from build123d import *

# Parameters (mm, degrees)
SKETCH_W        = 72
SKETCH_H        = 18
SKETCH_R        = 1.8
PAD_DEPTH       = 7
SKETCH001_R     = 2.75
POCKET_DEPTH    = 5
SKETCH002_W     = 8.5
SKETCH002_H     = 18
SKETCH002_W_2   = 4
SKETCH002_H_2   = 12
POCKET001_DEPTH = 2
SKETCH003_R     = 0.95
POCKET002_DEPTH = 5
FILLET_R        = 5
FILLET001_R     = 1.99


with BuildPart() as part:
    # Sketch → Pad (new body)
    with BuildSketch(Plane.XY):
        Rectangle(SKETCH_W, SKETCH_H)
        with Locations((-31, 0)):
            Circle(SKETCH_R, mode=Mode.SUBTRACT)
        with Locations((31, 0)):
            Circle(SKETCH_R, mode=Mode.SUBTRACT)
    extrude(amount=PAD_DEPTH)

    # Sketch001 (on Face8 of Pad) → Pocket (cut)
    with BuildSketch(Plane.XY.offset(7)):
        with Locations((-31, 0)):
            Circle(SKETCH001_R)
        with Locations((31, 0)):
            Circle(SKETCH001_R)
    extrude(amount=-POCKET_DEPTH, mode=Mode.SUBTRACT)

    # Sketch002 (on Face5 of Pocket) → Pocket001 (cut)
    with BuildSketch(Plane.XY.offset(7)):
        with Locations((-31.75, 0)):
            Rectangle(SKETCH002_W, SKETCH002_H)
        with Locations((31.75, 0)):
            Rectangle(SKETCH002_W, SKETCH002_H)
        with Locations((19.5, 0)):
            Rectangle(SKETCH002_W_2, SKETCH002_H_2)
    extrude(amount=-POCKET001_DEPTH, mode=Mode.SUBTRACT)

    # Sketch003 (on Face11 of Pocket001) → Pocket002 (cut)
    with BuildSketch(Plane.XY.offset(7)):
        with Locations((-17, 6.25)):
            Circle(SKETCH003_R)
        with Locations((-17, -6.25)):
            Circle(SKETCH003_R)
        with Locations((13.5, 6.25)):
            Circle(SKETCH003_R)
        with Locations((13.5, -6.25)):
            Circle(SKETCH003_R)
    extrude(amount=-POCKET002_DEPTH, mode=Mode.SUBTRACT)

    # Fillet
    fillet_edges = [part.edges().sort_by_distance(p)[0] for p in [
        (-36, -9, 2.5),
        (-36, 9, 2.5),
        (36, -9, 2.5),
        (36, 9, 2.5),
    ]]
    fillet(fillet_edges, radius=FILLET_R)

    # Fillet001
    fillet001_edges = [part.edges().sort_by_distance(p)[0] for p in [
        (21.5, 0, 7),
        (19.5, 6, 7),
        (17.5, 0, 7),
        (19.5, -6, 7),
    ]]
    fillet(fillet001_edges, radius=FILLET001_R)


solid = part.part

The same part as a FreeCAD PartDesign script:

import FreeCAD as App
import Part
import Sketcher

V = App.Vector


def edges_at(feature, points):
    """Names of the edges that pass closest to the given points."""
    edges = feature.Shape.Edges
    near = lambda p: min(range(len(edges)), key=lambda i: edges[i].distToShape(Part.Vertex(*p))[0])
    return sorted({f"Edge{near(p) + 1}" for p in points})


def add_polygon(sketch, points):
    """Adds a closed chain of lines whose ends are joined by coincident constraints."""
    first, n = sketch.GeometryCount, len(points)
    for a, b in zip(points, points[1:] + points[:1]):
        sketch.addGeometry(Part.LineSegment(App.Vector(*a, 0), App.Vector(*b, 0)), False)
    for i in range(n):
        sketch.addConstraint(Sketcher.Constraint("Coincident", first + i, 2, first + (i + 1) % n, 1))

doc = App.newDocument("Part")
body = doc.addObject("PartDesign::Body", "Body")

sketch1 = doc.addObject("Sketcher::SketchObject", "Sketch")
body.addObject(sketch1)
sketch1.AttachmentSupport = (doc.XY_Plane, [""])
sketch1.MapMode = "FlatFace"
add_polygon(sketch1, [(-36, 9), (-36, -9), (36, -9), (36, 9)])
sketch1.addGeometry(Part.Circle(V(-31, 0, 0), V(0, 0, 1), 1.8), False)
sketch1.addGeometry(Part.Circle(V(31, 0, 0), V(0, 0, 1), 1.8), False)
sketch1.addConstraint([
    Sketcher.Constraint("Vertical", 0),
    Sketcher.Constraint("Horizontal", 1),
    Sketcher.Constraint("Vertical", 2),
    Sketcher.Constraint("Horizontal", 3),
    Sketcher.Constraint("Equal", 4, 5),
    Sketcher.Constraint("Symmetric", 4, 3, 5, 3, -1, 1),
    Sketcher.Constraint("Symmetric", 0, 2, 2, 2, -1, 1),
    Sketcher.Constraint("PointOnObject", 4, 3, -1),
    Sketcher.Constraint("Diameter", 4, 3.6),
    Sketcher.Constraint("DistanceX", 1, 1, 1, 2, 72.0),
    Sketcher.Constraint("DistanceY", 0, 2, 0, 1, 18.0),
    Sketcher.Constraint("DistanceX", 4, 3, -1, 1, 31.0),
])
pad1 = doc.addObject("PartDesign::Pad", "Pad")
body.addObject(pad1)
pad1.Profile = sketch1
pad1.Length = 7

sketch2 = doc.addObject("Sketcher::SketchObject", "Sketch001")
body.addObject(sketch2)
sketch2.AttachmentSupport = (doc.XY_Plane, [""])
sketch2.MapMode = "FlatFace"
sketch2.AttachmentOffset = App.Placement(V(0, 0, 7), App.Rotation())
sketch2.addGeometry([
    Part.Circle(V(-31, 0, 0), V(0, 0, 1), 2.8),
    Part.Circle(V(31, 0, 0), V(0, 0, 1), 2.8),
], False)
sketch2.addConstraint([
    Sketcher.Constraint("Equal", 0, 1),
    Sketcher.Constraint("Symmetric", 0, 3, 1, 3, -1, 1),
    Sketcher.Constraint("PointOnObject", 0, 3, -1),
    Sketcher.Constraint("Diameter", 0, 5.5),
    Sketcher.Constraint("DistanceX", 0, 3, -1, 1, 31.0),
])
pocket1 = doc.addObject("PartDesign::Pocket", "Pocket")
body.addObject(pocket1)
pocket1.Profile = sketch2
pocket1.Length = 5

sketch3 = doc.addObject("Sketcher::SketchObject", "Sketch002")
body.addObject(sketch3)
sketch3.AttachmentSupport = (doc.XY_Plane, [""])
sketch3.MapMode = "FlatFace"
sketch3.AttachmentOffset = App.Placement(V(0, 0, 7), App.Rotation())
add_polygon(sketch3, [(-36, 9), (-36, -9), (-27.5, -9), (-27.5, 9)])
add_polygon(sketch3, [(27.5, 9), (27.5, -9), (36, -9), (36, 9)])
add_polygon(sketch3, [(17.5, 6), (17.5, -6), (21.5, -6), (21.5, 6)])
sketch3.addConstraint([
    Sketcher.Constraint("Vertical", 0),
    Sketcher.Constraint("Horizontal", 1),
    Sketcher.Constraint("Vertical", 2),
    Sketcher.Constraint("Horizontal", 3),
    Sketcher.Constraint("Vertical", 4),
    Sketcher.Constraint("Horizontal", 5),
    Sketcher.Constraint("Vertical", 6),
    Sketcher.Constraint("Horizontal", 7),
    Sketcher.Constraint("Vertical", 8),
    Sketcher.Constraint("Horizontal", 9),
    Sketcher.Constraint("Vertical", 10),
    Sketcher.Constraint("Horizontal", 11),
    Sketcher.Constraint("Symmetric", 2, 2, 4, 2, -1, 1),
    Sketcher.Constraint("Symmetric", 0, 2, 6, 2, -1, 1),
    Sketcher.Constraint("Horizontal", 1, 2, 4, 2),
    Sketcher.Constraint("DistanceX", 9, 1, 9, 2, 4.0),
    Sketcher.Constraint("DistanceY", 0, 2, 0, 1, 18.0),
    Sketcher.Constraint("DistanceY", 8, 2, 8, 1, 12.0),
    Sketcher.Constraint("DistanceX", 1, 1, 1, 2, 8.5),
    Sketcher.Constraint("DistanceX", 0, 2, -1, 1, 36.0),
    Sketcher.Constraint("DistanceY", 8, 2, -1, 1, 6.0),
    Sketcher.Constraint("DistanceX", 8, 2, 4, 2, 10.0),
])
pocket2 = doc.addObject("PartDesign::Pocket", "Pocket001")
body.addObject(pocket2)
pocket2.Profile = sketch3
pocket2.Length = 2

sketch4 = doc.addObject("Sketcher::SketchObject", "Sketch003")
body.addObject(sketch4)
sketch4.AttachmentSupport = (doc.XY_Plane, [""])
sketch4.MapMode = "FlatFace"
sketch4.AttachmentOffset = App.Placement(V(0, 0, 7), App.Rotation())
sketch4.addGeometry([
    Part.Circle(V(-17, 6.2, 0), V(0, 0, 1), 0.9),
    Part.Circle(V(-17, -6.2, 0), V(0, 0, 1), 0.9),
    Part.Circle(V(13.5, 6.2, 0), V(0, 0, 1), 0.9),
    Part.Circle(V(13.5, -6.2, 0), V(0, 0, 1), 0.9),
], False)
sketch4.addConstraint([
    Sketcher.Constraint("Equal", 0, 1),
    Sketcher.Constraint("Equal", 1, 2),
    Sketcher.Constraint("Equal", 2, 3),
    Sketcher.Constraint("Symmetric", 0, 3, 1, 3, -1),
    Sketcher.Constraint("Symmetric", 2, 3, 3, 3, -1),
    Sketcher.Constraint("Horizontal", 0, 3, 2, 3),
    Sketcher.Constraint("Diameter", 0, 1.9),
    Sketcher.Constraint("DistanceX", 0, 3, -1, 1, 17.0),
    Sketcher.Constraint("DistanceX", -1, 1, 2, 3, 13.5),
    Sketcher.Constraint("DistanceY", 1, 3, 0, 3, 12.5),
])
pocket3 = doc.addObject("PartDesign::Pocket", "Pocket002")
body.addObject(pocket3)
pocket3.Profile = sketch4
pocket3.Length = 5
doc.recompute()

fillet = doc.addObject("PartDesign::Fillet", "Fillet")
body.addObject(fillet)
fillet.Base = (pocket3, edges_at(pocket3, [
    (-36, -9, 2.5),
    (-36, 9, 2.5),
    (36, -9, 2.5),
    (36, 9, 2.5),
]))
fillet.Radius = 5
doc.recompute()

fillet2 = doc.addObject("PartDesign::Fillet", "Fillet001")
body.addObject(fillet2)
fillet2.Base = (fillet, edges_at(fillet, [
    (21.5, 0, 7),
    (19.5, 6, 7),
    (17.5, 0, 7),
    (19.5, -6, 7),
]))
fillet2.Radius = 1.99

doc.recompute()
